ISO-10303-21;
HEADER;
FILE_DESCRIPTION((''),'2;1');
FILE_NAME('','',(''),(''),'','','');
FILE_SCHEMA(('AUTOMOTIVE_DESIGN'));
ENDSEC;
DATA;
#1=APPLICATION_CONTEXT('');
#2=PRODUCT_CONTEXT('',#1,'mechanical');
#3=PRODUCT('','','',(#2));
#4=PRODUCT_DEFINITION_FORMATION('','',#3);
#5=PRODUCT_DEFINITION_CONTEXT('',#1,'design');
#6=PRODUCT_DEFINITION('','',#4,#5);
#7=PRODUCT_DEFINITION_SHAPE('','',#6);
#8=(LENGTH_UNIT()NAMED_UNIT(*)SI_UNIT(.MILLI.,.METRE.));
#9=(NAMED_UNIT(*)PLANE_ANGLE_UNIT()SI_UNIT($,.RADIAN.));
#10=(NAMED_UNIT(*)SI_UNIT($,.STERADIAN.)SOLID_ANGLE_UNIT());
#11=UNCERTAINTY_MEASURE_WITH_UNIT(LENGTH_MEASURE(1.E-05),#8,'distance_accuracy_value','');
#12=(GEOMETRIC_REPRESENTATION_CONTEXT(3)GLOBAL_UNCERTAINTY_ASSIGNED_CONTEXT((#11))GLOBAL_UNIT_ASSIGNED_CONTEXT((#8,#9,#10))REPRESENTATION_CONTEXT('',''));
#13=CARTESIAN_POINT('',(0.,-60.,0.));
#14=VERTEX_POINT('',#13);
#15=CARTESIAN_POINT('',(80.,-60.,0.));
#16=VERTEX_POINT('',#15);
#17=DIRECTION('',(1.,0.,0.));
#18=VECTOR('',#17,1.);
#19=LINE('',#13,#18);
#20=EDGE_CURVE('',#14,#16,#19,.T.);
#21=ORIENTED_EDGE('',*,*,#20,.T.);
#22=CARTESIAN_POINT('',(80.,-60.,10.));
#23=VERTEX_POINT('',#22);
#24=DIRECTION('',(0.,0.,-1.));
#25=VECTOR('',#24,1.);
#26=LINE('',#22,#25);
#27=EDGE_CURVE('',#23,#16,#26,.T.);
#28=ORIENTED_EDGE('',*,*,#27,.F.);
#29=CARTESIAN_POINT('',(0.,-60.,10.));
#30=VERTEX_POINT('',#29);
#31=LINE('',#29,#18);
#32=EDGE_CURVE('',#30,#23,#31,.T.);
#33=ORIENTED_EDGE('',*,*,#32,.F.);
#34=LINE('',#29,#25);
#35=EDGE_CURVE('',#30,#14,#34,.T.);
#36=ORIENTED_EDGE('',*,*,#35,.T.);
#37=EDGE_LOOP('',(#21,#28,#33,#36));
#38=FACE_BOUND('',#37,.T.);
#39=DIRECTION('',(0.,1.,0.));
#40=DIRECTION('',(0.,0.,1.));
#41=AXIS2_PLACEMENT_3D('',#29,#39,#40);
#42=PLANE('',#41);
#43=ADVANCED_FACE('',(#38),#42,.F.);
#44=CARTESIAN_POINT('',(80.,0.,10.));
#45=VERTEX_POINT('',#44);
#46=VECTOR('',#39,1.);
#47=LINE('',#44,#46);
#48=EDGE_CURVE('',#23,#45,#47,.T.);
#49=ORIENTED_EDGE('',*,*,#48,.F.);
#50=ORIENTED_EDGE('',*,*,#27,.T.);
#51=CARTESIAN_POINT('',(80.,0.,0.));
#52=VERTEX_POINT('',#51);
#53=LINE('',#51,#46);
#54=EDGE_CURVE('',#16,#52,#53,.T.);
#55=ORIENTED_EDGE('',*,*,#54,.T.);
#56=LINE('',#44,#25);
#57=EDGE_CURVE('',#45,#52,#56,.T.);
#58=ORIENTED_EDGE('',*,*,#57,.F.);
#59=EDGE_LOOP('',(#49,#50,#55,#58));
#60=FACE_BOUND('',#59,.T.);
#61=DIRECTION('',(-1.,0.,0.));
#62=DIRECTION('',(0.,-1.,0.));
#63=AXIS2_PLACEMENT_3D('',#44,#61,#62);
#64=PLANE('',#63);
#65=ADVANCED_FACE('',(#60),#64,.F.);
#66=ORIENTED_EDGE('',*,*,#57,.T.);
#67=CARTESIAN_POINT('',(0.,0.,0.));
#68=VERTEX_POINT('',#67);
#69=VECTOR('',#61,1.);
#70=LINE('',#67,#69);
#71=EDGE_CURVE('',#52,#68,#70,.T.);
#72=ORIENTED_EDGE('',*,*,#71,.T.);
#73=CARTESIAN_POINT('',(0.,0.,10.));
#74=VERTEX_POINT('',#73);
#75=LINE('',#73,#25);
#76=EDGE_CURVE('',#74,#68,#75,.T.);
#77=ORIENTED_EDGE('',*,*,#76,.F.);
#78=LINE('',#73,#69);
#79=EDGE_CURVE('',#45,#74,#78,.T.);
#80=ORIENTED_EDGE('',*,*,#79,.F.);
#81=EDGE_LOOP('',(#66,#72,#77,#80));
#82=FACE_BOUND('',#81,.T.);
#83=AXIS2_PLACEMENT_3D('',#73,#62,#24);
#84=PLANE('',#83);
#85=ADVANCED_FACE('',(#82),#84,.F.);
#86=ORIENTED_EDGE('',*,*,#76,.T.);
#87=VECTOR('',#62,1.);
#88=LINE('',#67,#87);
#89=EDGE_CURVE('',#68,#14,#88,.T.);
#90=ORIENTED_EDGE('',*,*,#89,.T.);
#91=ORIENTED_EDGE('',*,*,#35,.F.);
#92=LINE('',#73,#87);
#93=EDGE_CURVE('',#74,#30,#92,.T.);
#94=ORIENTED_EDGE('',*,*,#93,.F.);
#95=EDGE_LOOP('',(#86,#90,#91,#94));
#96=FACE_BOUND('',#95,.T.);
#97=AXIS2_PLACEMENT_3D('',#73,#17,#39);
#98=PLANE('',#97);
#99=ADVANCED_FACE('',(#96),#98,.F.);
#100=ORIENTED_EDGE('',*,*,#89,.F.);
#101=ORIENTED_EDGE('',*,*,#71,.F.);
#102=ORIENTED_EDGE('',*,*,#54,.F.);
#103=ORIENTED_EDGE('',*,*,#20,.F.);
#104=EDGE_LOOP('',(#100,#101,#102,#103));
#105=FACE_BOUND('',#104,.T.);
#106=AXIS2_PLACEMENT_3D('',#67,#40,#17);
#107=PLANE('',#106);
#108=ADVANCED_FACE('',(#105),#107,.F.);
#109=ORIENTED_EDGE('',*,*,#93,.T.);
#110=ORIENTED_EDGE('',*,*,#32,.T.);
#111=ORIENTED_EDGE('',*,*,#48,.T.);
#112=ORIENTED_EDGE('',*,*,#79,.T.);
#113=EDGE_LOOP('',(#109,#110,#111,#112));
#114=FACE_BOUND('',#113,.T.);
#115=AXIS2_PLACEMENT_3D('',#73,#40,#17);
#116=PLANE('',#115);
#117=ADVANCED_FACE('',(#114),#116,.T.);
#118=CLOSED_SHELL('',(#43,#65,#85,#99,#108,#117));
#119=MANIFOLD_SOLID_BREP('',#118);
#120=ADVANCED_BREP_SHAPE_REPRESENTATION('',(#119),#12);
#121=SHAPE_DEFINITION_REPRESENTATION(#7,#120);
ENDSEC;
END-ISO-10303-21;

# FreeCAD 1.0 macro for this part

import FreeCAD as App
import Part
import Sketcher
from FreeCAD import Vector


def add_polygon(sketch, points):
    """Adds a closed chain of lines whose ends are joined by coincident constraints."""
    first, n = sketch.GeometryCount, len(points)
    for a, b in zip(points, points[1:] + points[:1]):
        sketch.addGeometry(Part.LineSegment(App.Vector(*a, 0), App.Vector(*b, 0)), False)
    for i in range(n):
        sketch.addConstraint(Sketcher.Constraint("Coincident", first + i, 2, first + (i + 1) % n, 1))

doc = App.newDocument("Part")
params = doc.addObject("Spreadsheet::Sheet", "Params")
for row, (alias, value) in enumerate([
    ("sketch1_width", "80 mm"),
    ("sketch1_height", "60 mm"),
    ("pad1_length", "10 mm"),
], start=1):
    params.set(f"A{row}", alias)
    params.set(f"B{row}", "=" + value)
    params.setAlias(f"B{row}", alias)

body = doc.addObject("PartDesign::Body", "Body")

# Sketch on XY plane
sketch1 = doc.addObject("Sketcher::SketchObject", "Sketch")
body.addObject(sketch1)
sketch1.AttachmentSupport = (doc.XY_Plane, [""])
sketch1.MapMode = "FlatFace"
add_polygon(sketch1, [(0, 0), (0, -60), (80, -60), (80, 0)])  # lines 0-3
sketch1.addConstraint(Sketcher.Constraint("Vertical", 0))
sketch1.addConstraint(Sketcher.Constraint("Horizontal", 1))
sketch1.addConstraint(Sketcher.Constraint("Vertical", 2))
sketch1.addConstraint(Sketcher.Constraint("Horizontal", 3))
sketch1.addConstraint(Sketcher.Constraint("Coincident", 3, 2, -1, 1))
sketch1.addConstraint(Sketcher.Constraint("DistanceX", 1, 1, 1, 2, 80.0))
sketch1.addConstraint(Sketcher.Constraint("DistanceY", 0, 2, 0, 1, 60.0))
sketch1.setExpression("Constraints[9]", "Params.sketch1_width")
sketch1.setExpression("Constraints[10]", "Params.sketch1_height")
pad1 = doc.addObject("PartDesign::Pad", "Pad")
body.addObject(pad1)
pad1.Profile = sketch1
pad1.setExpression("Length", "Params.pad1_length")

doc.recompute()
